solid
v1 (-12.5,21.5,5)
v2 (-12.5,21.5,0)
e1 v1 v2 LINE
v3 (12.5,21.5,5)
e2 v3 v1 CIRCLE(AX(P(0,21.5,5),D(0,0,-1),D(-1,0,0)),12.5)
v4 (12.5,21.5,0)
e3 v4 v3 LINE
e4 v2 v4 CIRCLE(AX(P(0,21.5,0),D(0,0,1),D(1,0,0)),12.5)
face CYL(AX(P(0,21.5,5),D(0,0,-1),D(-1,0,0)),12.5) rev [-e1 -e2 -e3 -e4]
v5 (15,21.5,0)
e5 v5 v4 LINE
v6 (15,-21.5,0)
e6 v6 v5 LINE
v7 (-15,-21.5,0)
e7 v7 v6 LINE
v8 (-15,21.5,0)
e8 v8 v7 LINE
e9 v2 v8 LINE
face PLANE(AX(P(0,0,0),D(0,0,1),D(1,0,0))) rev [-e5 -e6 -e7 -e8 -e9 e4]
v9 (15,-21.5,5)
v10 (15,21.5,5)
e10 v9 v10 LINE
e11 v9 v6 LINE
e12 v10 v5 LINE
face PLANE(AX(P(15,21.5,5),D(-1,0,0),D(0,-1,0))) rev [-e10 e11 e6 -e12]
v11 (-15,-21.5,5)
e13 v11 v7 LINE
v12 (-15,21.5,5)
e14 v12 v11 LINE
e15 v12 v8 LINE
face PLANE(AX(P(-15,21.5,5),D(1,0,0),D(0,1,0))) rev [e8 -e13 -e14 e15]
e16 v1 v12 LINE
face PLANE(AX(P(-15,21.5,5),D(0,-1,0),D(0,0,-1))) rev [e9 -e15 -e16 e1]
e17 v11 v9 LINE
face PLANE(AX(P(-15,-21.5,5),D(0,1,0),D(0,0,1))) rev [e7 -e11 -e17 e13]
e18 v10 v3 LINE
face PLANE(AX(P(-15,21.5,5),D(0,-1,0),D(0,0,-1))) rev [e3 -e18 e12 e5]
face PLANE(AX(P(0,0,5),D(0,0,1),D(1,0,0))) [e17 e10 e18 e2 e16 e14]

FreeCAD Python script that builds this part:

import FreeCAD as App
import Part
import Sketcher
from FreeCAD import Vector
Q = App.Units.Quantity


def add_polygon(sketch, points):
    """Adds a closed chain of lines whose ends are joined by coincident constraints."""
    first, n = sketch.GeometryCount, len(points)
    for a, b in zip(points, points[1:] + points[:1]):
        sketch.addGeometry(Part.LineSegment(App.Vector(*a, 0), App.Vector(*b, 0)), False)
    for i in range(n):
        sketch.addConstraint(Sketcher.Constraint("Coincident", first + i, 2, first + (i + 1) % n, 1))

doc = App.newDocument("Part")
body = doc.addObject("PartDesign::Body", "Body")

# Sketch on XY plane
sketch1 = doc.addObject("Sketcher::SketchObject", "Sketch")
body.addObject(sketch1)
sketch1.AttachmentSupport = (doc.XY_Plane, [""])
sketch1.MapMode = "FlatFace"
add_polygon(sketch1, [(-15, 22), (-15, -22), (15, -22), (15, 22)])  # lines 0-3
sketch1.addConstraint(Sketcher.Constraint("Vertical", 0))
sketch1.addConstraint(Sketcher.Constraint("Horizontal", 1))
sketch1.addConstraint(Sketcher.Constraint("Vertical", 2))
sketch1.addConstraint(Sketcher.Constraint("Horizontal", 3))
sketch1.addConstraint(Sketcher.Constraint("Symmetric", 0, 2, 2, 2, -1, 1))
sketch1.addConstraint(Sketcher.Constraint("DistanceX", 1, 1, 1, 2, Q("30 mm")))
sketch1.addConstraint(Sketcher.Constraint("DistanceY", 0, 2, 0, 1, Q("43 mm")))
pad1 = doc.addObject("PartDesign::Pad", "Pad")
body.addObject(pad1)
pad1.Profile = sketch1
pad1.Length = 5

# Sketch on XY plane
sketch2 = doc.addObject("Sketcher::SketchObject", "Sketch001")
body.addObject(sketch2)
sketch2.AttachmentSupport = (doc.XY_Plane, [""])
sketch2.MapMode = "FlatFace"
sketch2.addGeometry(Part.Circle(Vector(0, 22, 0), Vector(0, 0, 1), 12), False)
sketch2.addConstraint(Sketcher.Constraint("PointOnObject", 0, 3, -2))
sketch2.addConstraint(Sketcher.Constraint("Diameter", 0, Q("25 mm")))
sketch2.addConstraint(Sketcher.Constraint("DistanceY", -1, 1, 0, 3, Q("21.5 mm")))
pocket1 = doc.addObject("PartDesign::Pocket", "Pocket")
body.addObject(pocket1)
pocket1.Profile = sketch2
pocket1.Type = "ThroughAll"
pocket1.Reversed = True

doc.recompute()
